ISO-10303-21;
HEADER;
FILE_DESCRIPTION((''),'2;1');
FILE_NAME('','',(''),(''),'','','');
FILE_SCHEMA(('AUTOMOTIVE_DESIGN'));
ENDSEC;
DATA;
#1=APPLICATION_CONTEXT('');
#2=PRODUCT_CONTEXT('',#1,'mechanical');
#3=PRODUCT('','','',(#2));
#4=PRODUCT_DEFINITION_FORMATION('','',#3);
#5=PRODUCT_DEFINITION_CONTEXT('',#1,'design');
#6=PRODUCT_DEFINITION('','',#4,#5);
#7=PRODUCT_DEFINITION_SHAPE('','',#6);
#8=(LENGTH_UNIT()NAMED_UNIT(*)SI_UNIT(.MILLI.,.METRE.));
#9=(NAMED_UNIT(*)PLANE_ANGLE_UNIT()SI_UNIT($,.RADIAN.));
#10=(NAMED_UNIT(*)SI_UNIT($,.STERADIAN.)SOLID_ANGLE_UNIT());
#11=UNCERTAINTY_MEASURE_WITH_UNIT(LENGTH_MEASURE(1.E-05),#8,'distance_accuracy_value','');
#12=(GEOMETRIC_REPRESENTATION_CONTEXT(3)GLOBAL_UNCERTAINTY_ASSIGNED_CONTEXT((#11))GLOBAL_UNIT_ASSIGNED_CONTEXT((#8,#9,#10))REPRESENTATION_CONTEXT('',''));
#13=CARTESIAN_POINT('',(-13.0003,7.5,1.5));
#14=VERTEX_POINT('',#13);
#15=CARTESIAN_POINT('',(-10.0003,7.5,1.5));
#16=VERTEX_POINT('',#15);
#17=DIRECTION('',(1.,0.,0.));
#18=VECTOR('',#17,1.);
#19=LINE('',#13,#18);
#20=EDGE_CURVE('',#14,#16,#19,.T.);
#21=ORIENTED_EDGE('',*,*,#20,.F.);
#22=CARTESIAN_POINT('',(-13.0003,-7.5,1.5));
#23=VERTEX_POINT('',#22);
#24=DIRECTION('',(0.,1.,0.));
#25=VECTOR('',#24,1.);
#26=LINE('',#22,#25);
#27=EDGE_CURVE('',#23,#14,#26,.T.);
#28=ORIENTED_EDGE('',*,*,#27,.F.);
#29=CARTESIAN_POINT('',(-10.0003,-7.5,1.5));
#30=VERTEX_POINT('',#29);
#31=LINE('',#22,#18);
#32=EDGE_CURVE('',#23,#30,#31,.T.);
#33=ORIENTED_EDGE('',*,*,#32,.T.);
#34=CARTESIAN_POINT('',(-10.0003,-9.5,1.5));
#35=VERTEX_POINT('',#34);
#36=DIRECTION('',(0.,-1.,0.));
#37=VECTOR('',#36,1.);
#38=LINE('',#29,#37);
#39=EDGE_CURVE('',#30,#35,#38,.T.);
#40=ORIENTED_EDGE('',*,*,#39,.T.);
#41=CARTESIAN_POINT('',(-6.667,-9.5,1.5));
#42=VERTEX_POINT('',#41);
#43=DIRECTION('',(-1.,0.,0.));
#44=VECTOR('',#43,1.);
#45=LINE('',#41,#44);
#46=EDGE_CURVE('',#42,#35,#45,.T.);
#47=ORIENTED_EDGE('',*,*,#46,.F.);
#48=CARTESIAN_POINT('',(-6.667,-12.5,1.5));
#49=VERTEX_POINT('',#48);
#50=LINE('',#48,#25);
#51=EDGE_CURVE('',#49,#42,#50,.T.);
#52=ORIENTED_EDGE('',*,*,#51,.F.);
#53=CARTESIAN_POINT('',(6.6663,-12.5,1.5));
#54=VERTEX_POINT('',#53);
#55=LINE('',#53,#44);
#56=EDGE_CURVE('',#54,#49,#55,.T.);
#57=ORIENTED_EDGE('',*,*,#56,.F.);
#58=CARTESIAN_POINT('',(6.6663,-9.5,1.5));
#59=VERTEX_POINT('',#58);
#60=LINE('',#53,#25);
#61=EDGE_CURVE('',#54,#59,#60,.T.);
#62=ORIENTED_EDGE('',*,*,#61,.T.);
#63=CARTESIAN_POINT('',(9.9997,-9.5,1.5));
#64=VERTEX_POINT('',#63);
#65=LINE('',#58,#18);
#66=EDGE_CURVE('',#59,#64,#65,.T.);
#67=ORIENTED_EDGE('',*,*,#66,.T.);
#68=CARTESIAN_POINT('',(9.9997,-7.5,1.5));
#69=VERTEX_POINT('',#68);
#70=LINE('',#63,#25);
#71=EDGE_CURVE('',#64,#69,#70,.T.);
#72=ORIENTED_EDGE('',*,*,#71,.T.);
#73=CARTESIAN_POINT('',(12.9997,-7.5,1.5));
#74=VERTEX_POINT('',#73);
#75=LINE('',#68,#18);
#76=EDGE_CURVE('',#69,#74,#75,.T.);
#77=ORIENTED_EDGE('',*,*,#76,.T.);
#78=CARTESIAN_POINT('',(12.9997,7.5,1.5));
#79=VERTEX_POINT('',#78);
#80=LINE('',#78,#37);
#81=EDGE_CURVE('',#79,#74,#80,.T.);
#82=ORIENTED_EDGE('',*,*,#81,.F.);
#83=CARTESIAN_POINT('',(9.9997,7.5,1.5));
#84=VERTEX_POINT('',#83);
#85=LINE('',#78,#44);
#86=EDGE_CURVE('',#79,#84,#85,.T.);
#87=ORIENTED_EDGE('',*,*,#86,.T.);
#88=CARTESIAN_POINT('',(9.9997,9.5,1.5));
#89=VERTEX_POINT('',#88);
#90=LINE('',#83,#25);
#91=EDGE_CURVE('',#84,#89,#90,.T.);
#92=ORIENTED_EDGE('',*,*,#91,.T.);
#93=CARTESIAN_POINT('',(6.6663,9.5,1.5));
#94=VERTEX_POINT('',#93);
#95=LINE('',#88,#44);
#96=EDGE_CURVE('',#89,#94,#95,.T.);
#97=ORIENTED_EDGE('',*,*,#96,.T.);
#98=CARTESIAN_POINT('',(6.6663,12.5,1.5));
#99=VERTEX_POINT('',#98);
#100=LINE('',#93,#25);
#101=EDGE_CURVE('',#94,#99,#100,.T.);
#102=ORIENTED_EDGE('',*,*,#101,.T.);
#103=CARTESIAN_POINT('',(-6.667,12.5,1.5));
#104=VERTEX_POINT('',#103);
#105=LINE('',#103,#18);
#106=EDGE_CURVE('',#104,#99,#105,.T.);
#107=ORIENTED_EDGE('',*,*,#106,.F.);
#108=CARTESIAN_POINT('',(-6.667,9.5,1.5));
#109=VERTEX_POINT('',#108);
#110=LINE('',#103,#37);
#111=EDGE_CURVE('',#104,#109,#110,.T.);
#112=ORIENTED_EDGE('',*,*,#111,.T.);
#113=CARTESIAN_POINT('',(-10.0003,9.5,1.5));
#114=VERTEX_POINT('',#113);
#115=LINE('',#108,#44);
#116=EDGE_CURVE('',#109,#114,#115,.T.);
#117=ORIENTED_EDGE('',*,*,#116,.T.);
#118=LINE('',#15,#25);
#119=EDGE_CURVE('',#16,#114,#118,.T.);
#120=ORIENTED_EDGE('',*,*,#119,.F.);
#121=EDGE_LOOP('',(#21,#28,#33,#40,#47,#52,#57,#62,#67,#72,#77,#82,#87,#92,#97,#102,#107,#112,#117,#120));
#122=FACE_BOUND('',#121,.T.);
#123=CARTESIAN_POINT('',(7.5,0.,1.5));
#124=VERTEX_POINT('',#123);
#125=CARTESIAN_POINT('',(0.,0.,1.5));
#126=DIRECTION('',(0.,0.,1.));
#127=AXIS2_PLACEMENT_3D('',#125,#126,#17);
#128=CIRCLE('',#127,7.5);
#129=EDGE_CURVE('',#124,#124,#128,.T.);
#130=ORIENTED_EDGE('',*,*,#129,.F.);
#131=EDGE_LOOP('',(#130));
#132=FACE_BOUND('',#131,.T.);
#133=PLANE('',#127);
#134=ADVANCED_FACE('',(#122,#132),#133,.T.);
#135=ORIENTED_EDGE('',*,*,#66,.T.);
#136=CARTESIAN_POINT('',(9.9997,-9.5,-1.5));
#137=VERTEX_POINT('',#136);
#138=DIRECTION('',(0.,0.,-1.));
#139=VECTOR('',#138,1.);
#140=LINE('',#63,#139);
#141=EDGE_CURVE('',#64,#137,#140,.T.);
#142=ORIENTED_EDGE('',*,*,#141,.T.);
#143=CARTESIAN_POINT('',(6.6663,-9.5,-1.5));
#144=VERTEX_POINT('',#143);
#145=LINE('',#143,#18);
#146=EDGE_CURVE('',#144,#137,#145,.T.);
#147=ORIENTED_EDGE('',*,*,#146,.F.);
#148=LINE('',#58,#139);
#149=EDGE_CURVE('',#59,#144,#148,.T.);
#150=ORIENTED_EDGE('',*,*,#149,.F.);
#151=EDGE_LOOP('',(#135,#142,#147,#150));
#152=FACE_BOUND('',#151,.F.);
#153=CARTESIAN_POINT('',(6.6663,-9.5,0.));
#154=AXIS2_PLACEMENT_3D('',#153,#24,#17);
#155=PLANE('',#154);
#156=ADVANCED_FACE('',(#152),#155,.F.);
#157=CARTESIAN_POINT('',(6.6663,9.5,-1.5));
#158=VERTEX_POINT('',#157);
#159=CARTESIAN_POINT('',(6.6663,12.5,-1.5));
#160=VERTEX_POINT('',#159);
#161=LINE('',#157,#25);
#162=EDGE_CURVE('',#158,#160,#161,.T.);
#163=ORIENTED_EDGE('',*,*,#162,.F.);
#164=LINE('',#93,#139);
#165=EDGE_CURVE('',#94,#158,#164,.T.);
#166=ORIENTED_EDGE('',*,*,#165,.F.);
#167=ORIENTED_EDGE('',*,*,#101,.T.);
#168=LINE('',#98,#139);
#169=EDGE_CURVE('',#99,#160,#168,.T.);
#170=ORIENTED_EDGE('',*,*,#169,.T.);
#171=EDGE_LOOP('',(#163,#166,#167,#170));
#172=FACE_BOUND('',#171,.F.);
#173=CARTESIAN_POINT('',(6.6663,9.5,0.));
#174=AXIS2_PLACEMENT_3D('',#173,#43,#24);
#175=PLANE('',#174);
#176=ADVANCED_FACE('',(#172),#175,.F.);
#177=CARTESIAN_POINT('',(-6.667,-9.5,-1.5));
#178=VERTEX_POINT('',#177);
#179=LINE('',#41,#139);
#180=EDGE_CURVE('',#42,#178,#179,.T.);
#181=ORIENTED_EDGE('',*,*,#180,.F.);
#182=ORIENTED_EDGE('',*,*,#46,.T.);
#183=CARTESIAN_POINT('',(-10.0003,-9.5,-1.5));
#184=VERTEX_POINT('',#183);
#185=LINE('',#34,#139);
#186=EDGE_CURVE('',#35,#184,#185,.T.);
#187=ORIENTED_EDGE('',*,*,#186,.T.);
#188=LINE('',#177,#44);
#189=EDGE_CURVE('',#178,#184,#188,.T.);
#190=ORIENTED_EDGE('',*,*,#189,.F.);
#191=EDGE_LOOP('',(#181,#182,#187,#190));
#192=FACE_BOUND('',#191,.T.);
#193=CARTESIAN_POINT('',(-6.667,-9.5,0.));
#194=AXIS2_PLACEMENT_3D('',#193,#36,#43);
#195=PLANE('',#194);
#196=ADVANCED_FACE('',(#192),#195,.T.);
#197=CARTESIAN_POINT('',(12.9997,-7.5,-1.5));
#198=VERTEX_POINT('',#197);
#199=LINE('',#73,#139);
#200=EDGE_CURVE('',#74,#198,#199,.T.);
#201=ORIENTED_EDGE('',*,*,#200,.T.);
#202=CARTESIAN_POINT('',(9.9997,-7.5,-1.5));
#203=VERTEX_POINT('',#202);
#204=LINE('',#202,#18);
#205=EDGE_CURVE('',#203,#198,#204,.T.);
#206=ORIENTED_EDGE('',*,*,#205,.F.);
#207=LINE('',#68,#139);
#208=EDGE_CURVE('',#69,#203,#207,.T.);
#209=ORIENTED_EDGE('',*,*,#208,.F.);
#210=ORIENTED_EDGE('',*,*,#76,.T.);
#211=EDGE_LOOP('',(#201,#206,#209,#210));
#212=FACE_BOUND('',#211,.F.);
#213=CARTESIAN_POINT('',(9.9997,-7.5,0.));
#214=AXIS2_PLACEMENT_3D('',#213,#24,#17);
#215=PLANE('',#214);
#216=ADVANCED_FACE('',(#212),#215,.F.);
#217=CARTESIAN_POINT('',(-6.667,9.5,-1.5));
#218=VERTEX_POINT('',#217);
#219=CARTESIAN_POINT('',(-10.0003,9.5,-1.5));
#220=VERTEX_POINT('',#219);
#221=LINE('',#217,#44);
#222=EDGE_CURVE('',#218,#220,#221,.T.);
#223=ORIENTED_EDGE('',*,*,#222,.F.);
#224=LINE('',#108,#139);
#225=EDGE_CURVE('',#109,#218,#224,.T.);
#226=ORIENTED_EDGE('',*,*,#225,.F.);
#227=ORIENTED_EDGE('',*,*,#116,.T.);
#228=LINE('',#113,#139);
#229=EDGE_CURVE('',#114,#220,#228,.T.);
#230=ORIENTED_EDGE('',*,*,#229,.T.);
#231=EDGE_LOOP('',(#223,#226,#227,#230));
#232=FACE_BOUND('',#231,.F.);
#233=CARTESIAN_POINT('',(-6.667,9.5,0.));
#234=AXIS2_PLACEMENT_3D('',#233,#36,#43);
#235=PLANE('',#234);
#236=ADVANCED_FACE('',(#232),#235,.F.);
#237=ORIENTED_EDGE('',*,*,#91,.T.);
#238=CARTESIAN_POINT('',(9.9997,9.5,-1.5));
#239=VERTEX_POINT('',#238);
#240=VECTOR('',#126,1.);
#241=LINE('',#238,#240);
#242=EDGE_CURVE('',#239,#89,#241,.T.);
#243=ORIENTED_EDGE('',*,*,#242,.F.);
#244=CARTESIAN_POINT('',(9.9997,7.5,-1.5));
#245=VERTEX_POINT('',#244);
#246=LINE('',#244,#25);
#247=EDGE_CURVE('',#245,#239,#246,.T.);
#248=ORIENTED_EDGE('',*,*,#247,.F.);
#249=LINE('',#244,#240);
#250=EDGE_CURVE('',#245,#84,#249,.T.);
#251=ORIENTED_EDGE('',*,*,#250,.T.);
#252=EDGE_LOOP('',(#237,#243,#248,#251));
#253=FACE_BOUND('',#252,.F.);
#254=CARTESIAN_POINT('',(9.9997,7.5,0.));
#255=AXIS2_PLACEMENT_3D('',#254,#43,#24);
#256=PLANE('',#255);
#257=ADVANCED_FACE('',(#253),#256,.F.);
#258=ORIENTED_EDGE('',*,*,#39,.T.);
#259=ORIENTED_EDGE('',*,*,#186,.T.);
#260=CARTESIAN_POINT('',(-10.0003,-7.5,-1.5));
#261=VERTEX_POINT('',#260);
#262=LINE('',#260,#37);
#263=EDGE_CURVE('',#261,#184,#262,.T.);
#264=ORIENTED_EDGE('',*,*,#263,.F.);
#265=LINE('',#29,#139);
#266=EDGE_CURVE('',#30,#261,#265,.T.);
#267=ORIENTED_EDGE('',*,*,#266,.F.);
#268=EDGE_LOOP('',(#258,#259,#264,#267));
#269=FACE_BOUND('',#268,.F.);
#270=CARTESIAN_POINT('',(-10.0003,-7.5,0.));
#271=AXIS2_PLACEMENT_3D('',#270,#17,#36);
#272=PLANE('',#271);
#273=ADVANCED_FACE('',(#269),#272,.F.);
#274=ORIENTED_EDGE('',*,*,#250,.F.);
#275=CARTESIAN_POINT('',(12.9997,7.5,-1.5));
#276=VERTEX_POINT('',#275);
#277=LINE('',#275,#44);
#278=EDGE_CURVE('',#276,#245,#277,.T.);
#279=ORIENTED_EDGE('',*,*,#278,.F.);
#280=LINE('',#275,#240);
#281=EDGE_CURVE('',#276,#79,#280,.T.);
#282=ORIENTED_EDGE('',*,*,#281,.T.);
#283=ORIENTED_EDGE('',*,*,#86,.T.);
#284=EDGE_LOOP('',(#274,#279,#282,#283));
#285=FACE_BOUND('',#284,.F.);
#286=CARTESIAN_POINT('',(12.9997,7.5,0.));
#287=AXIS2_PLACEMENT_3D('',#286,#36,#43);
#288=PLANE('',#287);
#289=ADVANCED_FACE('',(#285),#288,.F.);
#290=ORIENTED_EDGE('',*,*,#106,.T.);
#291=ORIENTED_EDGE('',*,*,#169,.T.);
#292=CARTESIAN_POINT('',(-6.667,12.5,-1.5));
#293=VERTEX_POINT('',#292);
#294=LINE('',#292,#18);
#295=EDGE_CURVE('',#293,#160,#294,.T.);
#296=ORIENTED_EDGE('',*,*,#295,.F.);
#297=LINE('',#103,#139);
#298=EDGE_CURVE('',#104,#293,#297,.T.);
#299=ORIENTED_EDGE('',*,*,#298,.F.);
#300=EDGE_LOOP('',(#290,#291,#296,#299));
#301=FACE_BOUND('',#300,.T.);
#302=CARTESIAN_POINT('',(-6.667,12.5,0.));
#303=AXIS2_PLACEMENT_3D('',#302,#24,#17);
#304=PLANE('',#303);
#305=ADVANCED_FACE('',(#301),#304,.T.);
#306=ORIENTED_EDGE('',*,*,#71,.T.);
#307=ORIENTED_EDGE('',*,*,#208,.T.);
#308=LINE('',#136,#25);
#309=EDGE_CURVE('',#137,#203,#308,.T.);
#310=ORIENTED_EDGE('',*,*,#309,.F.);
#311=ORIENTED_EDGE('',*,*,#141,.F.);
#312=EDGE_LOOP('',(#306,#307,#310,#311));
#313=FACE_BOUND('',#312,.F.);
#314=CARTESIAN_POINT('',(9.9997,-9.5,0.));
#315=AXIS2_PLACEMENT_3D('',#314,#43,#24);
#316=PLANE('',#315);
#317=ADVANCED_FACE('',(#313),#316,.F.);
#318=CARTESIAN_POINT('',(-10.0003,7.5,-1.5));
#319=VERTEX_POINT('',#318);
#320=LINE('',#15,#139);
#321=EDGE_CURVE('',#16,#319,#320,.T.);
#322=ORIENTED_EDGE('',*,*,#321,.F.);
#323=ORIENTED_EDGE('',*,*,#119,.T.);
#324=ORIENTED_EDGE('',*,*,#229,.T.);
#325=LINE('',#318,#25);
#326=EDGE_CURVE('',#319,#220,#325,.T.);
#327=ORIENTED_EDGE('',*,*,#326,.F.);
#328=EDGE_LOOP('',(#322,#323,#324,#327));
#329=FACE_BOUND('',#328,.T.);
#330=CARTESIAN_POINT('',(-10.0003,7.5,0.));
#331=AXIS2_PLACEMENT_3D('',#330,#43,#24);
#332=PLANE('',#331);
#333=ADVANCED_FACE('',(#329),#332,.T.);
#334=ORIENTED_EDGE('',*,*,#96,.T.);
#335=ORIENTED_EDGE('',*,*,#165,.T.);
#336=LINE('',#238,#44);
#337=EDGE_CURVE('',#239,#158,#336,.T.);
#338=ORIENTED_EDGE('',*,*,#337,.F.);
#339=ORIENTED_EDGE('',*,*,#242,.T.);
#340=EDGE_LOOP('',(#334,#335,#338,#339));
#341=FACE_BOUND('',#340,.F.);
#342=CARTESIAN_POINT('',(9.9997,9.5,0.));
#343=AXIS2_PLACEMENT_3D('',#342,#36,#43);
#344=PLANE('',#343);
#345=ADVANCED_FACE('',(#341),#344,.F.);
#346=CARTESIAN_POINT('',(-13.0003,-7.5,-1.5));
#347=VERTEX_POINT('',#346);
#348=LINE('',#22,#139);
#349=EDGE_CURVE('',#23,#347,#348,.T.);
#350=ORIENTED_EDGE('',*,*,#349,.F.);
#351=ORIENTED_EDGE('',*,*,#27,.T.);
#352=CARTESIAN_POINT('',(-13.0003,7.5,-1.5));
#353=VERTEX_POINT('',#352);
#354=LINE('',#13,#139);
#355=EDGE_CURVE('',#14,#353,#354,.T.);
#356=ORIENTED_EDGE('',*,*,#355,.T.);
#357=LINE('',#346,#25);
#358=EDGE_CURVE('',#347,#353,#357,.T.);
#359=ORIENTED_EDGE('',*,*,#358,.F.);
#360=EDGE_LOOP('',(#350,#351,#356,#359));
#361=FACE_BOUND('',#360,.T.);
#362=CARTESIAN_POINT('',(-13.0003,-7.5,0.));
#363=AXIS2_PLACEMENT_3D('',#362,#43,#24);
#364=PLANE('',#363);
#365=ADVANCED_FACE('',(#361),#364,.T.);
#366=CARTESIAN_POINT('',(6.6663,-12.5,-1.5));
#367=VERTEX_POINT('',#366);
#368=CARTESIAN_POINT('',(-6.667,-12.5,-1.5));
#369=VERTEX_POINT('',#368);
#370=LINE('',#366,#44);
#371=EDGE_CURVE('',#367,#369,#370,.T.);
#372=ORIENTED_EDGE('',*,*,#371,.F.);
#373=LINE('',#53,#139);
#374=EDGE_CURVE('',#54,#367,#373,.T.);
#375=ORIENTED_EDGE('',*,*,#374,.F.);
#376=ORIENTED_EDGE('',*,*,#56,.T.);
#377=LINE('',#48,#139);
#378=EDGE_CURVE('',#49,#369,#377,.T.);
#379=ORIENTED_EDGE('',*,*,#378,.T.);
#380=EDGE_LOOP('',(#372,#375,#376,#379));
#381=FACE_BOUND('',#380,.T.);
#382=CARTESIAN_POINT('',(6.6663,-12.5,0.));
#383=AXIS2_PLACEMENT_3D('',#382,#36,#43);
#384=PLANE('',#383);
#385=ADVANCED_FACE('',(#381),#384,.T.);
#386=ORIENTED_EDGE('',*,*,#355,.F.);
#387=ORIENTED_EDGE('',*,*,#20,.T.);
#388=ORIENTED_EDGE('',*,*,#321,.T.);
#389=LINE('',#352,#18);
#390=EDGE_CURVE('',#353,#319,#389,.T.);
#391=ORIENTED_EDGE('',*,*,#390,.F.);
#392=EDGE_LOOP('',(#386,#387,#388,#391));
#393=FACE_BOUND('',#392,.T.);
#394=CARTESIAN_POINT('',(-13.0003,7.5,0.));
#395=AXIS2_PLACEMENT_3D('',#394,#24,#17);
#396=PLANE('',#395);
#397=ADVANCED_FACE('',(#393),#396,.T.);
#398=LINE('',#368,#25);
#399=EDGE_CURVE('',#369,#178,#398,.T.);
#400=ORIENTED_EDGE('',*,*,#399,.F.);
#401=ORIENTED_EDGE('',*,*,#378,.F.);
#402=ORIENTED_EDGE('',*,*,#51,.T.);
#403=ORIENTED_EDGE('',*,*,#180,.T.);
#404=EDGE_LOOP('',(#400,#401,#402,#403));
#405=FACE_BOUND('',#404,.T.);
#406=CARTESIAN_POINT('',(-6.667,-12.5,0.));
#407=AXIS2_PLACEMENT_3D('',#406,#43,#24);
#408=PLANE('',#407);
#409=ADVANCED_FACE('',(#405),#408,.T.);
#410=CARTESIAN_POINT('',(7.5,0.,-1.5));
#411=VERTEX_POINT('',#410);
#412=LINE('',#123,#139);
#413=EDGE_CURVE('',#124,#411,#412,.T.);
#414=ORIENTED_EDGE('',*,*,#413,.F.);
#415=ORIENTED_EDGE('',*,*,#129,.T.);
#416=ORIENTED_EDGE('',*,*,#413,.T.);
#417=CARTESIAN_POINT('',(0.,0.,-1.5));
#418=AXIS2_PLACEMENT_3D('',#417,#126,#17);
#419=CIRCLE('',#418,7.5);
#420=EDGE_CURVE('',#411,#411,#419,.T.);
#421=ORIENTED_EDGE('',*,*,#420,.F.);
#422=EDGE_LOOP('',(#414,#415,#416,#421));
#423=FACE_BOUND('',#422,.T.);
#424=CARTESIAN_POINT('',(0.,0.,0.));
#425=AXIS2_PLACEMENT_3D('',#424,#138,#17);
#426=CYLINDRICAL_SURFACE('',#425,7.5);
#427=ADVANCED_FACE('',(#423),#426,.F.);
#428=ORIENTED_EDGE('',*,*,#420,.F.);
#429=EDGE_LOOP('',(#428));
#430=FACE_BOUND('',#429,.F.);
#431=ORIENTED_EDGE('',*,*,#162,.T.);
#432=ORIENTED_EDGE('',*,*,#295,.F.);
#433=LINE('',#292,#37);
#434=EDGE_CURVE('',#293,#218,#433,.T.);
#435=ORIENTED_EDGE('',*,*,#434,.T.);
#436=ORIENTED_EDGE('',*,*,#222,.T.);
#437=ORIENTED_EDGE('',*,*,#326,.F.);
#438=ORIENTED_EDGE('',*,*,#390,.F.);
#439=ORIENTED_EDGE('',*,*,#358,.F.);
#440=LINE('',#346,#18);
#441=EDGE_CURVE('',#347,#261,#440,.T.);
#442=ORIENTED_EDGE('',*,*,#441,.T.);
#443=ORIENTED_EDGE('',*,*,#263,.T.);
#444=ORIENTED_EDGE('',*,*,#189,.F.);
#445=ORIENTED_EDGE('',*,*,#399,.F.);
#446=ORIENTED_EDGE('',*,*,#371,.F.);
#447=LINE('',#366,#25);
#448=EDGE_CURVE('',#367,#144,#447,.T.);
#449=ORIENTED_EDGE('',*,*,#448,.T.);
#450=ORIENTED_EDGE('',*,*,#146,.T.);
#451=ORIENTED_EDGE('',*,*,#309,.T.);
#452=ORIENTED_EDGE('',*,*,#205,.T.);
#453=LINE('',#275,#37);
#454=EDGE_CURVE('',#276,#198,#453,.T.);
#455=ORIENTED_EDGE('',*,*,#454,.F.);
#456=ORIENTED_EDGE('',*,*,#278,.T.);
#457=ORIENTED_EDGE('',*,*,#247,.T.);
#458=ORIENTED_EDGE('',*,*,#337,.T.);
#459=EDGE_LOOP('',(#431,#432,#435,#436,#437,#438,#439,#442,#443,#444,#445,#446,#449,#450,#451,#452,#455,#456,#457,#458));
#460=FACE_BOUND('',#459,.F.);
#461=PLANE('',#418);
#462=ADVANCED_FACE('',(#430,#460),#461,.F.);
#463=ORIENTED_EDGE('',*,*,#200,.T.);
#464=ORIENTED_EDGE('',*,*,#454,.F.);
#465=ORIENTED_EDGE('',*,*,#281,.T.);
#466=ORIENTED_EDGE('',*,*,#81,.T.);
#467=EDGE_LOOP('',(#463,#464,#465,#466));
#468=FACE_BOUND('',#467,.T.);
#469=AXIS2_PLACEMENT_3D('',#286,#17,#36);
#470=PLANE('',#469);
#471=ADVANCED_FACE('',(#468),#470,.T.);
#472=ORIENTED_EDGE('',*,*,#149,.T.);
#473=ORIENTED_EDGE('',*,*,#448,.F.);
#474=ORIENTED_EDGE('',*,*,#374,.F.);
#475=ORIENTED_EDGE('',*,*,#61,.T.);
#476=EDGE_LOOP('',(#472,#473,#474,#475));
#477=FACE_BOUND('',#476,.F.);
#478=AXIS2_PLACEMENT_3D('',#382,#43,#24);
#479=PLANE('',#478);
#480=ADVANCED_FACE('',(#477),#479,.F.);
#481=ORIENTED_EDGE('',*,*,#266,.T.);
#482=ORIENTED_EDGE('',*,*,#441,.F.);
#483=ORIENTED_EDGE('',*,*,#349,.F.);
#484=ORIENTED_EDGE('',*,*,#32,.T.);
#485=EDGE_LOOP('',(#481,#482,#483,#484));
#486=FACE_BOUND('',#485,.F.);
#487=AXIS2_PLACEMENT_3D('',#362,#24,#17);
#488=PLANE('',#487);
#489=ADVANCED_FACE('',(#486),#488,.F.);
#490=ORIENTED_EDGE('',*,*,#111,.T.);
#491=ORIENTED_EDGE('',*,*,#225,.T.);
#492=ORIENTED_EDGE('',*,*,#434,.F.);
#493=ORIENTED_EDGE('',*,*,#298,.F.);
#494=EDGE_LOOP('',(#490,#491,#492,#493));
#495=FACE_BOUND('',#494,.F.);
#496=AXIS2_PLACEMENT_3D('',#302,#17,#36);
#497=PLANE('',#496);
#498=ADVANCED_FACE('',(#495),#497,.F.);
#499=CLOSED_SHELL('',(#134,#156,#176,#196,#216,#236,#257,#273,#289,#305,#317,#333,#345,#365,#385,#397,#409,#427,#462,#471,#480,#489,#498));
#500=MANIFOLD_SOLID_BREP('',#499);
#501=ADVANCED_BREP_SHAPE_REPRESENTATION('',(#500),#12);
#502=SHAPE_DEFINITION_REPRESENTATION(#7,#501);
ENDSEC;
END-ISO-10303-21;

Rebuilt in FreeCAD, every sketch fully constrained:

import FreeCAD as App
import Part
import Sketcher
Q = App.Units.Quantity


def add_polygon(sketch, points):
    """Adds a closed chain of lines whose ends are joined by coincident constraints."""
    first, n = sketch.GeometryCount, len(points)
    for a, b in zip(points, points[1:] + points[:1]):
        sketch.addGeometry(Part.LineSegment(App.Vector(*a, 0), App.Vector(*b, 0)), False)
    for i in range(n):
        sketch.addConstraint(Sketcher.Constraint("Coincident", first + i, 2, first + (i + 1) % n, 1))

doc = App.newDocument("Part")
body = doc.addObject("PartDesign::Body", "Body")

sketch1 = doc.addObject("Sketcher::SketchObject", "Sketch")
body.addObject(sketch1)
sketch1.AttachmentSupport = (doc.XY_Plane, [""])
sketch1.MapMode = "FlatFace"
add_polygon(sketch1, [(13, -7.5), (13, 7.5), (10, 7.5), (10, 9.5), (6.7, 9.5), (6.7, 12.5), (-6.7, 12.5), (-6.7, 9.5), (-10, 9.5), (-10, 7.5), (-13, 7.5), (-13, -7.5), (-10, -7.5), (-10, -9.5), (-6.7, -9.5), (-6.7, -12.5), (6.7, -12.5), (6.7, -9.5), (10, -9.5), (10, -7.5)])
sketch1.addGeometry(Part.Circle(App.Vector(0, 0, 0), App.Vector(0, 0, 1), 7.5), False)
sketch1.addConstraint(Sketcher.Constraint("Vertical", 0))
sketch1.addConstraint(Sketcher.Constraint("Horizontal", 1))
sketch1.addConstraint(Sketcher.Constraint("Vertical", 2))
sketch1.addConstraint(Sketcher.Constraint("Horizontal", 3))
sketch1.addConstraint(Sketcher.Constraint("Vertical", 4))
sketch1.addConstraint(Sketcher.Constraint("Horizontal", 5))
sketch1.addConstraint(Sketcher.Constraint("Vertical", 6))
sketch1.addConstraint(Sketcher.Constraint("Horizontal", 7))
sketch1.addConstraint(Sketcher.Constraint("Vertical", 8))
sketch1.addConstraint(Sketcher.Constraint("Horizontal", 9))
sketch1.addConstraint(Sketcher.Constraint("Vertical", 10))
sketch1.addConstraint(Sketcher.Constraint("Horizontal", 11))
sketch1.addConstraint(Sketcher.Constraint("Vertical", 12))
sketch1.addConstraint(Sketcher.Constraint("Horizontal", 13))
sketch1.addConstraint(Sketcher.Constraint("Vertical", 14))
sketch1.addConstraint(Sketcher.Constraint("Horizontal", 15))
sketch1.addConstraint(Sketcher.Constraint("Vertical", 16))
sketch1.addConstraint(Sketcher.Constraint("Horizontal", 17))
sketch1.addConstraint(Sketcher.Constraint("Vertical", 18))
sketch1.addConstraint(Sketcher.Constraint("Horizontal", 19))
sketch1.addConstraint(Sketcher.Constraint("Coincident", 20, 3, -1, 1))
sketch1.addConstraint(Sketcher.Constraint("Symmetric", 8, 2, 11, 2, -1))
sketch1.addConstraint(Sketcher.Constraint("Symmetric", 6, 2, 13, 2, -1))
sketch1.addConstraint(Sketcher.Constraint("Symmetric", 4, 2, 15, 2, -1))
sketch1.addConstraint(Sketcher.Constraint("Symmetric", 2, 2, 17, 2, -1))
sketch1.addConstraint(Sketcher.Constraint("Horizontal", 3, 2, 6, 2))
sketch1.addConstraint(Sketcher.Constraint("Horizontal", 1, 2, 8, 2))
sketch1.addConstraint(Sketcher.Constraint("Horizontal", 11, 2, 18, 2))
sketch1.addConstraint(Sketcher.Constraint("Equal", 3, 7))
sketch1.addConstraint(Sketcher.Constraint("Equal", 1, 9))
sketch1.addConstraint(Sketcher.Constraint("Equal", 19, 4))
sketch1.addConstraint(Sketcher.Constraint("Diameter", 20, Q("15 mm")))
sketch1.addConstraint(Sketcher.Constraint("DistanceX", 1, 2, 1, 1, Q("3 mm")))
sketch1.addConstraint(Sketcher.Constraint("DistanceY", 0, 1, 0, 2, Q("15 mm")))
sketch1.addConstraint(Sketcher.Constraint("DistanceY", 2, 1, 2, 2, Q("2 mm")))
sketch1.addConstraint(Sketcher.Constraint("DistanceX", 5, 2, 5, 1, Q("13.3333 mm")))
sketch1.addConstraint(Sketcher.Constraint("DistanceX", 3, 2, 3, 1, Q("3.3334 mm")))
sketch1.addConstraint(Sketcher.Constraint("DistanceX", 5, 2, -1, 1, Q("6.667 mm")))
pad1 = doc.addObject("PartDesign::Pad", "Pad")
body.addObject(pad1)
pad1.Profile = sketch1
pad1.Length = 3
pad1.Midplane = True

doc.recompute()
